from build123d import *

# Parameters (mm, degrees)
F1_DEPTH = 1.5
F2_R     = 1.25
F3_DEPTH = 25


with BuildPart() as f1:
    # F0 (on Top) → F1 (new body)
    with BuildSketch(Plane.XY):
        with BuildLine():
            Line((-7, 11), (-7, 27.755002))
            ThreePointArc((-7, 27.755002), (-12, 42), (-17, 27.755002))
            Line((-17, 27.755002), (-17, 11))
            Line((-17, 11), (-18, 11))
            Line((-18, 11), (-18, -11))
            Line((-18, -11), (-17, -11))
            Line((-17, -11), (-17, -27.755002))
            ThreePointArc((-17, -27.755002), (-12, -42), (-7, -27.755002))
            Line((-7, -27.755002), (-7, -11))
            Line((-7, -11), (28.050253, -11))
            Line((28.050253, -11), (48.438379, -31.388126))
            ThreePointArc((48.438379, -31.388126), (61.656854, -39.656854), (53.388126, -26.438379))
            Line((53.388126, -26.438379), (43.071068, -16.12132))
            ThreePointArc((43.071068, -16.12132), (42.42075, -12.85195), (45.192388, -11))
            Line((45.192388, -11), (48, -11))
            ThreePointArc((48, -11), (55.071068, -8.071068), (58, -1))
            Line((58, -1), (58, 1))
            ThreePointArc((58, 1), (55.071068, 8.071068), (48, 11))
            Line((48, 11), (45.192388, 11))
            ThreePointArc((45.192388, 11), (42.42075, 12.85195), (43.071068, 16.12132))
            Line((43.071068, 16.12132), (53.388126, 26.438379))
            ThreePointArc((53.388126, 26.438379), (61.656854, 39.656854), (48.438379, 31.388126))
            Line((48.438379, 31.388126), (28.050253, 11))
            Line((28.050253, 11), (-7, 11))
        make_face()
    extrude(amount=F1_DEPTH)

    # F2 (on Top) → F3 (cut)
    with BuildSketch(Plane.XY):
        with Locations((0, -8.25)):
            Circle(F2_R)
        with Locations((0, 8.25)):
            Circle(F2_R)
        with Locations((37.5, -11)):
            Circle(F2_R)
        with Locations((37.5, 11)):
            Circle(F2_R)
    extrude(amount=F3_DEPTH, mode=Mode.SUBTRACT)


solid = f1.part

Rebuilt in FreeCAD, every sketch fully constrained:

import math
import FreeCAD as App
import Part
import Sketcher

V = App.Vector
Q = App.Units.Quantity

doc = App.newDocument("Part")
body = doc.addObject("PartDesign::Body", "Body")

# Sketch on XY plane
sketch1 = body.newObject("Sketcher::SketchObject", "Sketch")
sketch1.AttachmentSupport = (doc.getObject("XY_Plane"), [""])
sketch1.MapMode = "FlatFace"
sketch1.addGeometry([
    Part.LineSegment(V(-7, 11, 0), V(-7, 27.8, 0)),  # 0
    Part.ArcOfCircle(Part.Circle(V(-12, 34, 0), V(0, 0, 1), 8), math.radians(-51), math.radians(231)),  # 1
    Part.LineSegment(V(-17, 27.8, 0), V(-17, 11, 0)),  # 2
    Part.LineSegment(V(-17, 11, 0), V(-18, 11, 0)),  # 3
    Part.LineSegment(V(-18, 11, 0), V(-18, -11, 0)),  # 4
    Part.LineSegment(V(-18, -11, 0), V(-17, -11, 0)),  # 5
    Part.LineSegment(V(-17, -11, 0), V(-17, -27.8, 0)),  # 6
    Part.ArcOfCircle(Part.Circle(V(-12, -34, 0), V(0, 0, 1), 8), math.radians(129), math.radians(411)),  # 7
    Part.LineSegment(V(-7, -27.8, 0), V(-7, -11, 0)),  # 8
    Part.LineSegment(V(-7, -11, 0), V(28.1, -11, 0)),  # 9
    Part.LineSegment(V(28.1, -11, 0), V(48.4, -31.4, 0)),  # 10
    Part.ArcOfCircle(Part.Circle(V(56, -34, 0), V(0, 0, 1), 8), math.radians(161), math.radians(469)),  # 11
    Part.LineSegment(V(53.4, -26.4, 0), V(43.1, -16.1, 0)),  # 12
    Part.ArcOfCircle(Part.Circle(V(45.2, -14, 0), V(0, 0, 1), 3), math.radians(90), math.radians(225)),  # 13
    Part.LineSegment(V(45.2, -11, 0), V(48, -11, 0)),  # 14
    Part.ArcOfCircle(Part.Circle(V(48, -1, 0), V(0, 0, 1), 10), math.radians(-90), math.radians(0)),  # 15
    Part.LineSegment(V(58, -1, 0), V(58, 1, 0)),  # 16
    Part.ArcOfCircle(Part.Circle(V(48, 1, 0), V(0, 0, 1), 10), math.radians(0), math.radians(90)),  # 17
    Part.LineSegment(V(48, 11, 0), V(45.2, 11, 0)),  # 18
    Part.ArcOfCircle(Part.Circle(V(45.2, 14, 0), V(0, 0, 1), 3), math.radians(135), math.radians(270)),  # 19
    Part.LineSegment(V(43.1, 16.1, 0), V(53.4, 26.4, 0)),  # 20
    Part.ArcOfCircle(Part.Circle(V(56, 34, 0), V(0, 0, 1), 8), math.radians(-109), math.radians(199)),  # 21
    Part.LineSegment(V(48.4, 31.4, 0), V(28.1, 11, 0)),  # 22
    Part.LineSegment(V(28.1, 11, 0), V(-7, 11, 0)),  # 23
], False)
sketch1.addConstraint([
    Sketcher.Constraint("Coincident", 0, 2, 1, 1),
    Sketcher.Constraint("Coincident", 1, 2, 2, 1),
    Sketcher.Constraint("Coincident", 2, 2, 3, 1),
    Sketcher.Constraint("Coincident", 3, 2, 4, 1),
    Sketcher.Constraint("Coincident", 4, 2, 5, 1),
    Sketcher.Constraint("Coincident", 5, 2, 6, 1),
    Sketcher.Constraint("Coincident", 6, 2, 7, 1),
    Sketcher.Constraint("Coincident", 7, 2, 8, 1),
    Sketcher.Constraint("Coincident", 8, 2, 9, 1),
    Sketcher.Constraint("Coincident", 9, 2, 10, 1),
    Sketcher.Constraint("Coincident", 10, 2, 11, 1),
    Sketcher.Constraint("Coincident", 11, 2, 12, 1),
    Sketcher.Constraint("Tangent", 12, 2, 13, 2),
    Sketcher.Constraint("Tangent", 13, 1, 14, 1),
    Sketcher.Constraint("Tangent", 14, 2, 15, 1),
    Sketcher.Constraint("Tangent", 15, 2, 16, 1),
    Sketcher.Constraint("Tangent", 16, 2, 17, 1),
    Sketcher.Constraint("Tangent", 17, 2, 18, 1),
    Sketcher.Constraint("Tangent", 18, 2, 19, 2),
    Sketcher.Constraint("Tangent", 19, 1, 20, 1),
    Sketcher.Constraint("Coincident", 20, 2, 21, 1),
    Sketcher.Constraint("Coincident", 21, 2, 22, 1),
    Sketcher.Constraint("Coincident", 22, 2, 23, 1),
    Sketcher.Constraint("Coincident", 23, 2, 0, 1),
    Sketcher.Constraint("Vertical", 0),
    Sketcher.Constraint("Vertical", 2),
    Sketcher.Constraint("Horizontal", 3),
    Sketcher.Constraint("Vertical", 4),
    Sketcher.Constraint("Horizontal", 5),
    Sketcher.Constraint("Vertical", 6),
    Sketcher.Constraint("Vertical", 8),
    Sketcher.Constraint("Horizontal", 9),
    Sketcher.Constraint("Horizontal", 14),
    Sketcher.Constraint("Vertical", 16),
    Sketcher.Constraint("Horizontal", 18),
    Sketcher.Constraint("Horizontal", 23),
    Sketcher.Constraint("Equal", 1, 7),
    Sketcher.Constraint("Equal", 7, 11),
    Sketcher.Constraint("Equal", 15, 17),
    Sketcher.Constraint("Equal", 13, 19),
    Sketcher.Constraint("Equal", 11, 21),
    Sketcher.Constraint("Symmetric", 1, 3, 7, 3, -1),
    Sketcher.Constraint("Symmetric", 13, 3, 19, 3, -1),
    Sketcher.Constraint("Symmetric", 11, 3, 21, 3, -1),
    Sketcher.Constraint("Symmetric", 2, 2, 5, 2, -1),
    Sketcher.Constraint("Symmetric", 9, 2, 22, 2, -1),
    Sketcher.Constraint("Parallel", 10, 12),
    Sketcher.Constraint("Perpendicular", 12, 20),
    Sketcher.Constraint("Parallel", 20, 22),
    Sketcher.Constraint("Horizontal", 7, 3, 11, 3),
    Sketcher.Constraint("Horizontal", 0, 2, 1, 2),
    Sketcher.Constraint("Horizontal", 6, 2, 7, 2),
    Sketcher.Constraint("Horizontal", 5, 2, 8, 2),
    Sketcher.Constraint("Horizontal", 9, 2, 13, 1),
    Sketcher.Constraint("Vertical", 12, 2, 19, 1),
    Sketcher.Constraint("Radius", 1, Q("8 mm")),
    Sketcher.Constraint("Radius", 13, Q("3 mm")),
    Sketcher.Constraint("Radius", 15, Q("9.999999 mm")),
    Sketcher.Constraint("DistanceX", 3, 2, 3, 1, Q("1 mm")),
    Sketcher.Constraint("DistanceY", 4, 2, 4, 1, Q("22 mm")),
    Sketcher.Constraint("DistanceX", 1, 3, -1, 1, Q("12 mm")),
    Sketcher.Constraint("DistanceY", -1, 1, 1, 3, Q("34 mm")),
    Sketcher.Constraint("DistanceX", -1, 1, 11, 3, Q("56 mm")),
    Sketcher.Constraint("DistanceX", -1, 1, 15, 3, Q("48.000001 mm")),
    Sketcher.Constraint("DistanceX", 0, 2, -1, 1, Q("7 mm")),
    Sketcher.Constraint("DistanceX", 14, 1, 14, 2, Q("2.807612 mm")),
    Sketcher.Constraint("DistanceX", 9, 1, 9, 2, Q("35.050253 mm")),
])
pad1 = body.newObject("PartDesign::Pad", "Pad")
pad1.Profile = sketch1
pad1.Length = 1.5

# Sketch on XY plane
sketch2 = body.newObject("Sketcher::SketchObject", "Sketch001")
sketch2.AttachmentSupport = (doc.getObject("XY_Plane"), [""])
sketch2.MapMode = "FlatFace"
sketch2.addGeometry([
    Part.Circle(V(0, -8.2, 0), V(0, 0, 1), 1.2),
    Part.Circle(V(0, 8.2, 0), V(0, 0, 1), 1.2),
    Part.Circle(V(37.5, -11, 0), V(0, 0, 1), 1.2),
    Part.Circle(V(37.5, 11, 0), V(0, 0, 1), 1.2),
], False)
sketch2.addConstraint([
    Sketcher.Constraint("Equal", 0, 1),
    Sketcher.Constraint("Equal", 1, 2),
    Sketcher.Constraint("Equal", 2, 3),
    Sketcher.Constraint("Symmetric", 0, 3, 1, 3, -1, 1),
    Sketcher.Constraint("Symmetric", 2, 3, 3, 3, -1),
    Sketcher.Constraint("PointOnObject", 0, 3, -2),
    Sketcher.Constraint("Diameter", 0, Q("2.5 mm")),
    Sketcher.Constraint("DistanceY", 2, 3, -1, 1, Q("11 mm")),
    Sketcher.Constraint("DistanceX", -1, 1, 2, 3, Q("37.5 mm")),
    Sketcher.Constraint("DistanceY", 0, 3, 1, 3, Q("16.5 mm")),
])
pocket1 = body.newObject("PartDesign::Pocket", "Pocket")
pocket1.Profile = sketch2
pocket1.Length = 25
pocket1.Reversed = True

doc.recompute()
